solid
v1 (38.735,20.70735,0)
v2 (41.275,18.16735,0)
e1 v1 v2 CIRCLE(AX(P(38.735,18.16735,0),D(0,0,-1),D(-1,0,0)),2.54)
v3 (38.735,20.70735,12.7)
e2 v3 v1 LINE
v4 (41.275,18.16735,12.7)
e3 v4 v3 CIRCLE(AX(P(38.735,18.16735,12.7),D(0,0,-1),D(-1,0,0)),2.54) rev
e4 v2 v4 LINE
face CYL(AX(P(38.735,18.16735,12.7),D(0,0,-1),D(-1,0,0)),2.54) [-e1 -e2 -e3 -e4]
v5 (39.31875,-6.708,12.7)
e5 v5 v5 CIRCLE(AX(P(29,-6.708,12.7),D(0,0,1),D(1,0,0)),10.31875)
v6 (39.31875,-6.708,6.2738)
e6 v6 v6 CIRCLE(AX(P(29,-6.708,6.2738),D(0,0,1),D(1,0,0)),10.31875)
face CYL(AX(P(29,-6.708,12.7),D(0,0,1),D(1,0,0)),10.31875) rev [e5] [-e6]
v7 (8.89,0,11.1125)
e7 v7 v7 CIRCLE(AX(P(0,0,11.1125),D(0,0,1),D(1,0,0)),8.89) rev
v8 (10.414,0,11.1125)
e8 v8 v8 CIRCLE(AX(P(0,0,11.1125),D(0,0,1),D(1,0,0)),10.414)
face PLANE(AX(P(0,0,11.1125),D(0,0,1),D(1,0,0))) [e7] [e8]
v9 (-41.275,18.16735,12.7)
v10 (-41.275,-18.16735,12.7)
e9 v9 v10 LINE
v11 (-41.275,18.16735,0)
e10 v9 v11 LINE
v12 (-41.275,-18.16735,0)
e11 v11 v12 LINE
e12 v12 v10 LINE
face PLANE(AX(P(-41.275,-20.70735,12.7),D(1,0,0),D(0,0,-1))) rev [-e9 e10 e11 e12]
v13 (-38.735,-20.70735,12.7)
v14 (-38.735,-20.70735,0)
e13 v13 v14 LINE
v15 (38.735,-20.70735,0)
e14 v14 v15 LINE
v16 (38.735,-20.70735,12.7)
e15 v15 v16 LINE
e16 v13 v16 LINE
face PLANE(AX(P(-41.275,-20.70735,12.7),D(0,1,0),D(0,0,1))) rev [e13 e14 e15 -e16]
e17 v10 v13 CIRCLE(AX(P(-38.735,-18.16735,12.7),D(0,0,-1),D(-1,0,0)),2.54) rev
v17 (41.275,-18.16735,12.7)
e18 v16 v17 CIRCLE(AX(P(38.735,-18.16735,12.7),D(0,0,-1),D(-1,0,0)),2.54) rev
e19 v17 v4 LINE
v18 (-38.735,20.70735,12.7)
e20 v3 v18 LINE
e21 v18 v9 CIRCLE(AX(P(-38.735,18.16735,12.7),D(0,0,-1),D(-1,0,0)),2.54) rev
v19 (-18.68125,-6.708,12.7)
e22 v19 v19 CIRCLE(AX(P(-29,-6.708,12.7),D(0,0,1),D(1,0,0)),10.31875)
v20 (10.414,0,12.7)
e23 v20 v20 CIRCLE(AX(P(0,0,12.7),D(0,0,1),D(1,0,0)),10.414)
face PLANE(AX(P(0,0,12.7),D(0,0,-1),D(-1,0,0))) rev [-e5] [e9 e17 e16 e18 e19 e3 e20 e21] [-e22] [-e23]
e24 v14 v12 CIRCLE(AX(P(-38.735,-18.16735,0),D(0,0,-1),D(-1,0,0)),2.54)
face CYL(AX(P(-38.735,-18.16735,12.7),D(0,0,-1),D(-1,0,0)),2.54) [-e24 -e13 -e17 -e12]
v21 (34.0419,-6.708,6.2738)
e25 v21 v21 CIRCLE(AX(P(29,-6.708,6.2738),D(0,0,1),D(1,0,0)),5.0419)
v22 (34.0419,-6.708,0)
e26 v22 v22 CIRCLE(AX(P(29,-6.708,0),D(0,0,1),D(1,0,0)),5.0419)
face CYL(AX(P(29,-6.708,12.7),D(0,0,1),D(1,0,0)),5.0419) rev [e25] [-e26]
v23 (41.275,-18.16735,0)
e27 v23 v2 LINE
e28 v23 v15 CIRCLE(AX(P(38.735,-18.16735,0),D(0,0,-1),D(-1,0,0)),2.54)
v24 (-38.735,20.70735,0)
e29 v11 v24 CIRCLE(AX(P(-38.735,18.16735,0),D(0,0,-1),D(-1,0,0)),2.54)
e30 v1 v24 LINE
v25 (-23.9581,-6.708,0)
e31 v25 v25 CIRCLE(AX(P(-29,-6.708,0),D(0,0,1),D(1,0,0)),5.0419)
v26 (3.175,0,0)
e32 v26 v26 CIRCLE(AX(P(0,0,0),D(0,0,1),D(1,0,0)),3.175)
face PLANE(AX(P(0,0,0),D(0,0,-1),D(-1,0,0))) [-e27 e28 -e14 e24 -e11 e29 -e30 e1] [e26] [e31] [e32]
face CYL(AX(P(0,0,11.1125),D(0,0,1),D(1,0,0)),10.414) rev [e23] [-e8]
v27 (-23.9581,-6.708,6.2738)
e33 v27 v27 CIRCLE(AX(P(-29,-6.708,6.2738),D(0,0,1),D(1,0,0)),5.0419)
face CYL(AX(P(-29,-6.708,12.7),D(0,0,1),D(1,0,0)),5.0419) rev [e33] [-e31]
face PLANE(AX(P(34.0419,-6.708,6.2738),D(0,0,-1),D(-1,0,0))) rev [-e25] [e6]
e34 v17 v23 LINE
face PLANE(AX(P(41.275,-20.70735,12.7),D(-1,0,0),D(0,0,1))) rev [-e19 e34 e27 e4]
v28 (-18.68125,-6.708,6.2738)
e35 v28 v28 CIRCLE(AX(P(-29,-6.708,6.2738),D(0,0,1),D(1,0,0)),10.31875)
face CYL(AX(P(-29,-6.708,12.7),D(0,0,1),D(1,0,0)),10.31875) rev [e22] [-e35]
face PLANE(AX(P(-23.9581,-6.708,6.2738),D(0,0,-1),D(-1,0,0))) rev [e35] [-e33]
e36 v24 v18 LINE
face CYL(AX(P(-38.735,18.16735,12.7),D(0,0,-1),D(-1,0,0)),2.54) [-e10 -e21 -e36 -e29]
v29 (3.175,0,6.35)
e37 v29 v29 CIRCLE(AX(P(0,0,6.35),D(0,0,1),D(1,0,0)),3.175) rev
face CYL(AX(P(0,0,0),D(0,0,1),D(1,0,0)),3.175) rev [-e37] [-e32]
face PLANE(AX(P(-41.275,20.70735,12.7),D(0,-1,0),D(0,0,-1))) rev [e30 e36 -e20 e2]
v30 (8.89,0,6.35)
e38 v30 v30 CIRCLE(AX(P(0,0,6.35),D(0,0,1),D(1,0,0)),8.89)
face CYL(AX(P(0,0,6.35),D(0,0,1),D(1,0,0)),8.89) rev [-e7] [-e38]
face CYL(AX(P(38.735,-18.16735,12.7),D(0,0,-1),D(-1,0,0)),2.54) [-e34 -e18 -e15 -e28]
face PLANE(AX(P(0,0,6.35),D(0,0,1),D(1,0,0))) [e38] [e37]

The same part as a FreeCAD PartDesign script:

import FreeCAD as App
import Part
import Sketcher
from FreeCAD import Vector
Q = App.Units.Quantity


def edges_at(feature, points):
    """Names of the edges that pass closest to the given points."""
    edges = feature.Shape.Edges
    near = lambda p: min(range(len(edges)), key=lambda i: edges[i].distToShape(Part.Vertex(*p))[0])
    return sorted({f"Edge{near(p) + 1}" for p in points})

doc = App.newDocument("Part")
body = doc.addObject("PartDesign::Body", "Body")

sketch1 = body.newObject("Sketcher::SketchObject", "Sketch")
sketch1.AttachmentSupport = (doc.getObject("XY_Plane"), [""])
sketch1.MapMode = "FlatFace"
sketch1.addGeometry(Part.LineSegment(Vector(-41.275, 20.70735, 0), Vector(-41.275, -20.70735, 0)), False)
sketch1.addGeometry(Part.LineSegment(Vector(-41.275, -20.70735, 0), Vector(41.275, -20.70735, 0)), False)
sketch1.addGeometry(Part.LineSegment(Vector(41.275, -20.70735, 0), Vector(41.275, 20.70735, 0)), False)
sketch1.addGeometry(Part.LineSegment(Vector(41.275, 20.70735, 0), Vector(-41.275, 20.70735, 0)), False)
sketch1.addConstraint(Sketcher.Constraint("Coincident", 0, 2, 1, 1))
sketch1.addConstraint(Sketcher.Constraint("Coincident", 1, 2, 2, 1))
sketch1.addConstraint(Sketcher.Constraint("Coincident", 2, 2, 3, 1))
sketch1.addConstraint(Sketcher.Constraint("Coincident", 3, 2, 0, 1))
sketch1.addConstraint(Sketcher.Constraint("Vertical", 0))
sketch1.addConstraint(Sketcher.Constraint("Horizontal", 1))
sketch1.addConstraint(Sketcher.Constraint("Vertical", 2))
sketch1.addConstraint(Sketcher.Constraint("Horizontal", 3))
sketch1.addConstraint(Sketcher.Constraint("Symmetric", 0, 2, 2, 2, -1, 1))
sketch1.addConstraint(Sketcher.Constraint("DistanceX", 1, 1, 1, 2, Q("3.25 in")))
sketch1.addConstraint(Sketcher.Constraint("DistanceY", 0, 2, 0, 1, Q("1.6305 in")))
pad1 = body.newObject("PartDesign::Pad", "Pad")
pad1.Profile = sketch1
pad1.Length = Q("0.5 in")

sketch2 = body.newObject("Sketcher::SketchObject", "Sketch001")
sketch2.AttachmentSupport = (doc.getObject("XY_Plane"), [""])
sketch2.MapMode = "FlatFace"
sketch2.AttachmentOffset = App.Placement(Vector(0, 0, 0.5 * 25.4), App.Rotation())
sketch2.addGeometry(Part.Circle(Vector(0, 0, 0), Vector(0, 0, 1), 3.175), False)
sketch2.addConstraint(Sketcher.Constraint("Coincident", 0, 3, -1, 1))
sketch2.addConstraint(Sketcher.Constraint("Diameter", 0, Q("0.25 in")))
pocket1 = body.newObject("PartDesign::Pocket", "Pocket")
pocket1.Profile = sketch2
pocket1.Length = Q("0.5 in")

sketch3 = body.newObject("Sketcher::SketchObject", "Sketch002")
sketch3.AttachmentSupport = (doc.getObject("XY_Plane"), [""])
sketch3.MapMode = "FlatFace"
sketch3.AttachmentOffset = App.Placement(Vector(0, 0, 0.5 * 25.4), App.Rotation())
sketch3.addGeometry(Part.Circle(Vector(0, 0, 0), Vector(0, 0, 1), 8.89), False)
sketch3.addConstraint(Sketcher.Constraint("Coincident", 0, 3, -1, 1))
sketch3.addConstraint(Sketcher.Constraint("Diameter", 0, Q("0.7 in")))
pocket2 = body.newObject("PartDesign::Pocket", "Pocket001")
pocket2.Profile = sketch3
pocket2.Length = Q("0.25 in")

sketch4 = body.newObject("Sketcher::SketchObject", "Sketch003")
sketch4.AttachmentSupport = (doc.getObject("XY_Plane"), [""])
sketch4.MapMode = "FlatFace"
sketch4.AttachmentOffset = App.Placement(Vector(0, 0, 0.5 * 25.4), App.Rotation())
sketch4.addGeometry(Part.Circle(Vector(0, 0, 0), Vector(0, 0, 1), 10.414), False)
sketch4.addConstraint(Sketcher.Constraint("Coincident", 0, 3, -1, 1))
sketch4.addConstraint(Sketcher.Constraint("Diameter", 0, Q("0.82 in")))
pocket3 = body.newObject("PartDesign::Pocket", "Pocket002")
pocket3.Profile = sketch4
pocket3.Length = Q("0.0625 in")
doc.recompute()

fillet = body.newObject("PartDesign::Fillet", "Fillet")
fillet.Base = (pocket3, edges_at(pocket3, [
    (41.275, -20.707, 6.35),
    (-41.275, -20.707, 6.35),
    (-41.275, 20.707, 6.35),
    (41.275, 20.707, 6.35),
]))
fillet.Radius = Q("0.1 in")

sketch5 = body.newObject("Sketcher::SketchObject", "Sketch004")
sketch5.AttachmentSupport = (doc.getObject("XY_Plane"), [""])
sketch5.MapMode = "FlatFace"
sketch5.AttachmentOffset = App.Placement(Vector(0, 0, 0.5 * 25.4), App.Rotation())
sketch5.addGeometry(Part.Circle(Vector(-29, -6.708, 0), Vector(0, 0, 1), 5.0419), False)
sketch5.addGeometry(Part.Circle(Vector(29, -6.708, 0), Vector(0, 0, 1), 5.0419), False)
sketch5.addConstraint(Sketcher.Constraint("Equal", 0, 1))
sketch5.addConstraint(Sketcher.Constraint("Symmetric", 0, 3, 1, 3, -2))
sketch5.addConstraint(Sketcher.Constraint("Diameter", 0, Q("0.397 in")))
sketch5.addConstraint(Sketcher.Constraint("DistanceX", 0, 3, -1, 1, 29.0))
sketch5.addConstraint(Sketcher.Constraint("DistanceY", 0, 3, -1, 1, 6.708))
doc.recompute()
hole = body.newObject("PartDesign::Hole", "Hole")
hole.Profile = sketch5
hole.ThreadType = "None"
hole.Diameter = Q("0.397 in")
hole.DepthType = "ThroughAll"
hole.HoleCutType = "Counterbore"
hole.HoleCutDiameter = Q("0.8125 in")
hole.HoleCutDepth = Q("0.253 in")

doc.recompute()
